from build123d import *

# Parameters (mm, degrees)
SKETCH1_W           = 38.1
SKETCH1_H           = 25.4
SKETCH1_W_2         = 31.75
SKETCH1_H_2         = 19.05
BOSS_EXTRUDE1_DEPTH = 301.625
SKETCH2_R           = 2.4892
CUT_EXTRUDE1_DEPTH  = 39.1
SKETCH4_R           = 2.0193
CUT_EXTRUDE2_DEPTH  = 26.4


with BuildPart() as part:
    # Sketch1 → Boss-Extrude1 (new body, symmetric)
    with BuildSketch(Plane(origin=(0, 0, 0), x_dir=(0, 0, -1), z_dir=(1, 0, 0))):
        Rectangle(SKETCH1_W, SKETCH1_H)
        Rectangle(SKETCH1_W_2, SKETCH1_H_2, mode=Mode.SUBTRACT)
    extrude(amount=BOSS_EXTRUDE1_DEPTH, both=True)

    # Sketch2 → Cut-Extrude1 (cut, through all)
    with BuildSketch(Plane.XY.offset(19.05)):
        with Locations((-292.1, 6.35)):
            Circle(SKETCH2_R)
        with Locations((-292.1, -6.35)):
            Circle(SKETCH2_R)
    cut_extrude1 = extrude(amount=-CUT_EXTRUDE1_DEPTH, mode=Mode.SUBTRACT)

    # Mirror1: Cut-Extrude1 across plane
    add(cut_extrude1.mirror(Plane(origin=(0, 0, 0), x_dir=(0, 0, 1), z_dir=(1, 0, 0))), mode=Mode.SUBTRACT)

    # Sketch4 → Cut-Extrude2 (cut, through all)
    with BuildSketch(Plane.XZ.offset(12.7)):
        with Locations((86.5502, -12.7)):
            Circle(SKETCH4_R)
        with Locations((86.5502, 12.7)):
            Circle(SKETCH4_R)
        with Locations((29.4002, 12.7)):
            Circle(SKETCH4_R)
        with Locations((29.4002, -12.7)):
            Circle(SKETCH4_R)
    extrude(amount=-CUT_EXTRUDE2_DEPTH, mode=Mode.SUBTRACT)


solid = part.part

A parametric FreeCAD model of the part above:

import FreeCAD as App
import Part
import Sketcher
from FreeCAD import Vector
Q = App.Units.Quantity


def add_polygon(sketch, points):
    """Adds a closed chain of lines whose ends are joined by coincident constraints."""
    first, n = sketch.GeometryCount, len(points)
    for a, b in zip(points, points[1:] + points[:1]):
        sketch.addGeometry(Part.LineSegment(App.Vector(*a, 0), App.Vector(*b, 0)), False)
    for i in range(n):
        sketch.addConstraint(Sketcher.Constraint("Coincident", first + i, 2, first + (i + 1) % n, 1))

doc = App.newDocument("Part")
params = doc.addObject("Spreadsheet::Sheet", "Params")
for row, (alias, value) in enumerate([
    ("sketch1_width", "1 in"),
    ("sketch1_height", "1.5 in"),
    ("sketch1_width2", "0.75 in"),
    ("sketch1_height2", "1.25 in"),
    ("pad1_length", "23.75 in"),
    ("sketch2_diameter", "0.196 in"),
    ("sketch3_diameter", "0.159 in"),
], start=1):
    params.set(f"A{row}", alias)
    params.set(f"B{row}", "=" + value)
    params.setAlias(f"B{row}", alias)

body = doc.addObject("PartDesign::Body", "Body")

sketch1 = body.newObject("Sketcher::SketchObject", "Sketch")
sketch1.AttachmentSupport = (doc.getObject("YZ_Plane"), [""])
sketch1.MapMode = "FlatFace"
add_polygon(sketch1, [(12.7, 19.05), (-12.7, 19.05), (-12.7, -19.05), (12.7, -19.05)])
add_polygon(sketch1, [(-9.525, -15.875), (-9.525, 15.875), (9.525, 15.875), (9.525, -15.875)])
sketch1.addConstraint(Sketcher.Constraint("Horizontal", 0))
sketch1.addConstraint(Sketcher.Constraint("Vertical", 1))
sketch1.addConstraint(Sketcher.Constraint("Horizontal", 2))
sketch1.addConstraint(Sketcher.Constraint("Vertical", 3))
sketch1.addConstraint(Sketcher.Constraint("Vertical", 4))
sketch1.addConstraint(Sketcher.Constraint("Horizontal", 5))
sketch1.addConstraint(Sketcher.Constraint("Vertical", 6))
sketch1.addConstraint(Sketcher.Constraint("Horizontal", 7))
sketch1.addConstraint(Sketcher.Constraint("Symmetric", 0, 2, 2, 2, -1, 1))
sketch1.addConstraint(Sketcher.Constraint("Symmetric", 4, 2, 6, 2, -1, 1))
sketch1.addConstraint(Sketcher.Constraint("DistanceX", 0, 2, 0, 1, Q("1 in")))
sketch1.addConstraint(Sketcher.Constraint("DistanceY", 1, 2, 1, 1, Q("1.5 in")))
sketch1.addConstraint(Sketcher.Constraint("DistanceX", 5, 1, 5, 2, Q("0.75 in")))
sketch1.addConstraint(Sketcher.Constraint("DistanceY", 4, 1, 4, 2, Q("1.25 in")))
sketch1.setExpression("Constraints[18]", "Params.sketch1_width")
sketch1.setExpression("Constraints[19]", "Params.sketch1_height")
sketch1.setExpression("Constraints[20]", "Params.sketch1_width2")
sketch1.setExpression("Constraints[21]", "Params.sketch1_height2")
pad1 = body.newObject("PartDesign::Pad", "Pad")
pad1.Profile = sketch1
pad1.setExpression("Length", "Params.pad1_length")
pad1.Midplane = True

sketch2 = body.newObject("Sketcher::SketchObject", "Sketch001")
sketch2.AttachmentSupport = (doc.getObject("XY_Plane"), [""])
sketch2.MapMode = "FlatFace"
sketch2.AttachmentOffset = App.Placement(Vector(0, 0, 0.75 * 25.4), App.Rotation())
sketch2.addGeometry(Part.Circle(Vector(-292.1, 6.35, 0), Vector(0, 0, 1), 2.4892), False)
sketch2.addGeometry(Part.Circle(Vector(-292.1, -6.35, 0), Vector(0, 0, 1), 2.4892), False)
sketch2.addConstraint(Sketcher.Constraint("Equal", 0, 1))
sketch2.addConstraint(Sketcher.Constraint("Symmetric", 0, 3, 1, 3, -1))
sketch2.addConstraint(Sketcher.Constraint("Diameter", 0, Q("0.196 in")))
sketch2.addConstraint(Sketcher.Constraint("DistanceX", 0, 3, -1, 1, Q("11.5 in")))
sketch2.addConstraint(Sketcher.Constraint("DistanceY", 1, 3, 0, 3, Q("0.5 in")))
sketch2.setExpression("Constraints[2]", "Params.sketch2_diameter")
pocket1 = body.newObject("PartDesign::Pocket", "Pocket")
pocket1.Profile = sketch2
pocket1.Type = "ThroughAll"
doc.recompute()

mirrored = body.newObject("PartDesign::Mirrored", "Mirrored")
mirrored.Originals = [pocket1]
mirrored.MirrorPlane = (doc.getObject("YZ_Plane"), [""])
body.Tip = mirrored

sketch3 = body.newObject("Sketcher::SketchObject", "Sketch002")
sketch3.AttachmentSupport = (doc.getObject("XZ_Plane"), [""])
sketch3.MapMode = "FlatFace"
sketch3.AttachmentOffset = App.Placement(Vector(0, 0, 0.5 * 25.4), App.Rotation())
sketch3.addGeometry(Part.Circle(Vector(86.5502, -12.7, 0), Vector(0, 0, 1), 2.0193), False)
sketch3.addGeometry(Part.Circle(Vector(86.5502, 12.7, 0), Vector(0, 0, 1), 2.0193), False)
sketch3.addGeometry(Part.Circle(Vector(29.4002, 12.7, 0), Vector(0, 0, 1), 2.0193), False)
sketch3.addGeometry(Part.Circle(Vector(29.4002, -12.7, 0), Vector(0, 0, 1), 2.0193), False)
sketch3.addConstraint(Sketcher.Constraint("Equal", 0, 1))
sketch3.addConstraint(Sketcher.Constraint("Equal", 1, 2))
sketch3.addConstraint(Sketcher.Constraint("Equal", 2, 3))
sketch3.addConstraint(Sketcher.Constraint("Symmetric", 0, 3, 1, 3, -1))
sketch3.addConstraint(Sketcher.Constraint("Symmetric", 2, 3, 3, 3, -1))
sketch3.addConstraint(Sketcher.Constraint("Horizontal", 1, 3, 2, 3))
sketch3.addConstraint(Sketcher.Constraint("Diameter", 0, Q("0.159 in")))
sketch3.addConstraint(Sketcher.Constraint("DistanceY", 0, 3, 1, 3, Q("1 in")))
sketch3.addConstraint(Sketcher.Constraint("DistanceX", 2, 3, 1, 3, Q("2.25 in")))
sketch3.addConstraint(Sketcher.Constraint("DistanceX", -1, 1, 0, 3, 86.5502))
sketch3.setExpression("Constraints[6]", "Params.sketch3_diameter")
pocket2 = body.newObject("PartDesign::Pocket", "Pocket001")
pocket2.Profile = sketch3
pocket2.Type = "ThroughAll"

doc.recompute()
